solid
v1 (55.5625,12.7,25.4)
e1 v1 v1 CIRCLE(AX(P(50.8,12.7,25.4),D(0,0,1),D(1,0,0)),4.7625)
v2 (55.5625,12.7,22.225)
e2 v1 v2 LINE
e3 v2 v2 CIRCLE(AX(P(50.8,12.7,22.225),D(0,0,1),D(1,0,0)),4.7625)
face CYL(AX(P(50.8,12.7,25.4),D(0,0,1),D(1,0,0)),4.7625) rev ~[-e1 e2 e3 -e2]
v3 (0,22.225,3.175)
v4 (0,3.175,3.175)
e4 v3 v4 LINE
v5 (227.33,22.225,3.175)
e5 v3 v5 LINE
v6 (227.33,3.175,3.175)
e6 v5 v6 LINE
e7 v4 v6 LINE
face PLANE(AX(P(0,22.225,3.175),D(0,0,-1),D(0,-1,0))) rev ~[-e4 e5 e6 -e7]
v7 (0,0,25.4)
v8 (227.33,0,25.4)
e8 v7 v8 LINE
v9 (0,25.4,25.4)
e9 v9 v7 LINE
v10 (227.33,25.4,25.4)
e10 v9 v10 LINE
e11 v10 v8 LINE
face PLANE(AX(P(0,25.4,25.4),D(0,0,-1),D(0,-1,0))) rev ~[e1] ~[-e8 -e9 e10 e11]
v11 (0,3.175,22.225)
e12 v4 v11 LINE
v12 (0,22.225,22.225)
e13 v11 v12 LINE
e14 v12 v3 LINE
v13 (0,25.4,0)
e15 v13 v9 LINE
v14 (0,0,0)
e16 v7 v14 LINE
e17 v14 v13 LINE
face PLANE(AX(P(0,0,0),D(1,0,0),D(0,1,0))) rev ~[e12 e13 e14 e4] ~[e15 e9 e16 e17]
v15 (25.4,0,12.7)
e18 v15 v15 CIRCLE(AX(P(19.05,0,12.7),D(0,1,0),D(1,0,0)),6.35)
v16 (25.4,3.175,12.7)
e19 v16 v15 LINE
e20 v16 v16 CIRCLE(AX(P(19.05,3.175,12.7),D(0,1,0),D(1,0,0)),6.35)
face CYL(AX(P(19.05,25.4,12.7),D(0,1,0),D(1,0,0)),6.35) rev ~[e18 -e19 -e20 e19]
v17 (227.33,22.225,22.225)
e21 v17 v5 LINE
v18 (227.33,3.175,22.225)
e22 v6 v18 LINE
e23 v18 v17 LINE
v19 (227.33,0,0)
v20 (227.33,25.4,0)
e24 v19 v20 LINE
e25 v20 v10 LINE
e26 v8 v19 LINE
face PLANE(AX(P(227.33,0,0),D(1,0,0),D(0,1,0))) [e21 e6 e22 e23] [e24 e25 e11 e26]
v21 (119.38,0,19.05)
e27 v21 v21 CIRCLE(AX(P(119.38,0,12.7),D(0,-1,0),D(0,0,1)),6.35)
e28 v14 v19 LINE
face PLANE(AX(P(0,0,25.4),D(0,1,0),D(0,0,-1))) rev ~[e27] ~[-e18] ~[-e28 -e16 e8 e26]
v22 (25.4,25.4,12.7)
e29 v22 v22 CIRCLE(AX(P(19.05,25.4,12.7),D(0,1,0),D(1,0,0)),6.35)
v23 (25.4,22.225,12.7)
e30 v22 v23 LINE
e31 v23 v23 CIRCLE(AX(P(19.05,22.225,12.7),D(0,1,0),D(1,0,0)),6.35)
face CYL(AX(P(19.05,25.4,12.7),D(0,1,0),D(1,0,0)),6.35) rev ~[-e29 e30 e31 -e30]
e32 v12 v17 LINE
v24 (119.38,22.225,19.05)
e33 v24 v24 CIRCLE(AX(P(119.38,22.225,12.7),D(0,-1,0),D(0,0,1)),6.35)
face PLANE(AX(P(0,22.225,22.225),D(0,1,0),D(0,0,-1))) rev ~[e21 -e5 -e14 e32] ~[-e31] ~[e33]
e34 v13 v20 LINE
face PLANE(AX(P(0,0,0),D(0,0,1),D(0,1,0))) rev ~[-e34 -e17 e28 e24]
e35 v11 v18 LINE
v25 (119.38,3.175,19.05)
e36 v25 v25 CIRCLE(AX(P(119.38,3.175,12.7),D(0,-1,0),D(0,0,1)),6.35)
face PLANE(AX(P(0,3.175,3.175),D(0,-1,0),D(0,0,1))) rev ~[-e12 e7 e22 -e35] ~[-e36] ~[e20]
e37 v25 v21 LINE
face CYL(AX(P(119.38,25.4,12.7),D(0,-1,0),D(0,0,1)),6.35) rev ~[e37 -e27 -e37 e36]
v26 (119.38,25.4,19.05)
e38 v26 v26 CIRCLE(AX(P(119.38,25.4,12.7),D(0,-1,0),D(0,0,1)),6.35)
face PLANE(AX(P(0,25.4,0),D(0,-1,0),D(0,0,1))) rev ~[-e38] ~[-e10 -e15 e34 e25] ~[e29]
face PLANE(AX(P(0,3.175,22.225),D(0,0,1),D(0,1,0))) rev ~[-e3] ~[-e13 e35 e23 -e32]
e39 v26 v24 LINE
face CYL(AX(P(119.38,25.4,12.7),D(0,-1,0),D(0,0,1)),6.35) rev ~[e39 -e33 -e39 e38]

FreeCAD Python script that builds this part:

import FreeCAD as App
import Part
import Sketcher
Q = App.Units.Quantity


def add_polygon(sketch, points):
    """Adds a closed chain of lines whose ends are joined by coincident constraints."""
    first, n = sketch.GeometryCount, len(points)
    for a, b in zip(points, points[1:] + points[:1]):
        sketch.addGeometry(Part.LineSegment(App.Vector(*a, 0), App.Vector(*b, 0)), False)
    for i in range(n):
        sketch.addConstraint(Sketcher.Constraint("Coincident", first + i, 2, first + (i + 1) % n, 1))

doc = App.newDocument("Part")
body = doc.addObject("PartDesign::Body", "Body")

sketch1 = body.newObject("Sketcher::SketchObject", "Sketch")
sketch1.AttachmentSupport = (doc.getObject("YZ_Plane"), [""])
sketch1.MapMode = "FlatFace"
add_polygon(sketch1, [(0, 25), (0, 0), (25, 0), (25, 25)])
add_polygon(sketch1, [(3, 3), (3, 22), (22, 22), (22, 3)])
sketch1.addConstraint([
    Sketcher.Constraint("Vertical", 0),
    Sketcher.Constraint("Horizontal", 1),
    Sketcher.Constraint("Vertical", 2),
    Sketcher.Constraint("Horizontal", 3),
    Sketcher.Constraint("Vertical", 4),
    Sketcher.Constraint("Horizontal", 5),
    Sketcher.Constraint("Vertical", 6),
    Sketcher.Constraint("Horizontal", 7),
    Sketcher.Constraint("Coincident", 0, 2, -1, 1),
    Sketcher.Constraint("Equal", 3, 0),
    Sketcher.Constraint("Equal", 7, 4),
    Sketcher.Constraint("DistanceX", 1, 1, 1, 2, Q("1 in")),
    Sketcher.Constraint("DistanceX", -1, 1, 4, 2, Q("0.125 in")),
    Sketcher.Constraint("DistanceY", -1, 1, 6, 2, Q("0.125 in")),
    Sketcher.Constraint("DistanceY", 4, 2, 3, 2, Q("0.125 in")),
])
pad1 = body.newObject("PartDesign::Pad", "Pad")
pad1.Profile = sketch1
pad1.Length = Q("8.95 in")

sketch2 = body.newObject("Sketcher::SketchObject", "Sketch001")
sketch2.AttachmentSupport = (doc.getObject("XZ_Plane"), [""])
sketch2.MapMode = "FlatFace"
sketch2.AttachmentOffset = App.Placement(App.Vector(0, 0, -1 * 25.4), App.Rotation())
sketch2.addGeometry(Part.Circle(App.Vector(19, 13, 0), App.Vector(0, 0, 1), 6), False)
sketch2.addConstraint([
    Sketcher.Constraint("Diameter", 0, Q("0.5 in")),
    Sketcher.Constraint("DistanceY", -1, 1, 0, 3, Q("0.5 in")),
    Sketcher.Constraint("DistanceX", -1, 1, 0, 3, Q("0.75 in")),
])
pocket1 = body.newObject("PartDesign::Pocket", "Pocket")
pocket1.Profile = sketch2
pocket1.Length = Q("1 in")
pocket1.Reversed = True

sketch3 = body.newObject("Sketcher::SketchObject", "Sketch002")
sketch3.AttachmentSupport = (doc.getObject("XY_Plane"), [""])
sketch3.MapMode = "FlatFace"
sketch3.AttachmentOffset = App.Placement(App.Vector(0, 0, 1 * 25.4), App.Rotation())
sketch3.addGeometry(Part.Circle(App.Vector(50.8, 12.7, 0), App.Vector(0, 0, 1), 4.8), False)
sketch3.addConstraint([
    Sketcher.Constraint("Diameter", 0, Q("0.375 in")),
    Sketcher.Constraint("DistanceX", -1, 1, 0, 3, Q("2 in")),
    Sketcher.Constraint("DistanceY", -1, 1, 0, 3, Q("0.5 in")),
])
pocket2 = body.newObject("PartDesign::Pocket", "Pocket001")
pocket2.Profile = sketch3
pocket2.Type = "UpToFirst"

sketch4 = body.newObject("Sketcher::SketchObject", "Sketch003")
sketch4.AttachmentSupport = (doc.getObject("XZ_Plane"), [""])
sketch4.MapMode = "FlatFace"
sketch4.AttachmentOffset = App.Placement(App.Vector(0, 0, -1 * 25.4), App.Rotation())
sketch4.addGeometry(Part.Circle(App.Vector(119, 13, 0), App.Vector(0, 0, 1), 6), False)
sketch4.addConstraint([
    Sketcher.Constraint("Diameter", 0, Q("0.5 in")),
    Sketcher.Constraint("DistanceX", -1, 1, 0, 3, Q("4.7 in")),
    Sketcher.Constraint("DistanceY", -1, 1, 0, 3, Q("0.5 in")),
])
doc.recompute()
hole = body.newObject("PartDesign::Hole", "Hole")
hole.Profile = sketch4
hole.ThreadType = "None"
hole.Diameter = Q("0.5 in")
hole.DepthType = "ThroughAll"
hole.Reversed = True

doc.recompute()
